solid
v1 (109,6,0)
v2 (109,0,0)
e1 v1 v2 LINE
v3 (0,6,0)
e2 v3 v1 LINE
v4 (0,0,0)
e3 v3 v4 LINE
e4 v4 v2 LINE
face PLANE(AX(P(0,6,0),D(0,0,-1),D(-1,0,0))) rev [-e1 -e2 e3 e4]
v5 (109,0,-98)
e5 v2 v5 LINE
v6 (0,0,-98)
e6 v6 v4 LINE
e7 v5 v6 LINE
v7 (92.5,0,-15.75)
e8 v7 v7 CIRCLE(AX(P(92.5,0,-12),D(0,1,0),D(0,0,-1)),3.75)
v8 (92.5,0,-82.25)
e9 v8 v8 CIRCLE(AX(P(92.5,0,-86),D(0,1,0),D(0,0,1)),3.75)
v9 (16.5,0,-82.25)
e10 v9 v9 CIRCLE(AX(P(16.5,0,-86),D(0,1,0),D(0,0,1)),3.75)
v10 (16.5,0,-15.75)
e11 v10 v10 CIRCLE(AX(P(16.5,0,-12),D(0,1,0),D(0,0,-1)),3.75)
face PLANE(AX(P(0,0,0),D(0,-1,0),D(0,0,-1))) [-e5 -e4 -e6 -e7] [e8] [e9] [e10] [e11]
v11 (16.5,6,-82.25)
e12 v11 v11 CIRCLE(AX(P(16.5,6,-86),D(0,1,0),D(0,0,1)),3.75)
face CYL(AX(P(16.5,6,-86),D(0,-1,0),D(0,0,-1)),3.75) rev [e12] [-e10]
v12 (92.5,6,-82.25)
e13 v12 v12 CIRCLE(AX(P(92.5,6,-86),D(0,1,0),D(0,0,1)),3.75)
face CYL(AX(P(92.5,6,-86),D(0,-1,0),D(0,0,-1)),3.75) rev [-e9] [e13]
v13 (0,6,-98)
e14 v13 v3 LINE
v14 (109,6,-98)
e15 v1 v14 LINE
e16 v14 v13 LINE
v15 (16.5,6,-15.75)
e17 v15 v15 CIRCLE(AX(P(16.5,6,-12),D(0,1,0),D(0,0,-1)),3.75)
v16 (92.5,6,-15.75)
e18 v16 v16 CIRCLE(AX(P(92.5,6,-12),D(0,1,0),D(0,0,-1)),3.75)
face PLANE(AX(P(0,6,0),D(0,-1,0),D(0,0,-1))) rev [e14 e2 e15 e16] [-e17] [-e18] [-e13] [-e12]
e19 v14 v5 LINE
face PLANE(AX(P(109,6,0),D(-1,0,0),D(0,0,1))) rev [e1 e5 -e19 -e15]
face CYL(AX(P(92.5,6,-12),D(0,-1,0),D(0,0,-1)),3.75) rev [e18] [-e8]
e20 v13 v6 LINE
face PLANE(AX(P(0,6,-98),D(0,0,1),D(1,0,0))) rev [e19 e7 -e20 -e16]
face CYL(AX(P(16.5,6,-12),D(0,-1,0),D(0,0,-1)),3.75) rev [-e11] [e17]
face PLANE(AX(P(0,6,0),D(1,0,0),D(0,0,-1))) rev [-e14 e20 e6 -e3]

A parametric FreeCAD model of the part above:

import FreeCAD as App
import Part
import Sketcher


def add_polygon(sketch, points):
    """Adds a closed chain of lines whose ends are joined by coincident constraints."""
    first, n = sketch.GeometryCount, len(points)
    for a, b in zip(points, points[1:] + points[:1]):
        sketch.addGeometry(Part.LineSegment(App.Vector(*a, 0), App.Vector(*b, 0)), False)
    for i in range(n):
        sketch.addConstraint(Sketcher.Constraint("Coincident", first + i, 2, first + (i + 1) % n, 1))

doc = App.newDocument("Part")
body = doc.addObject("PartDesign::Body", "Body")

# Sketch on XZ plane
sketch1 = body.newObject("Sketcher::SketchObject", "Sketch")
sketch1.AttachmentSupport = (doc.getObject("XZ_Plane"), [""])
sketch1.MapMode = "FlatFace"
add_polygon(sketch1, [(0, -98), (0, 0), (109, 0), (109, -98)])  # lines 0-3
sketch1.addGeometry(Part.Circle(App.Vector(16.5, -12, 0), App.Vector(0, 0, 1), 3.75), False)  # 4
sketch1.addGeometry(Part.Circle(App.Vector(92.5, -12, 0), App.Vector(0, 0, 1), 3.75), False)  # 5
sketch1.addGeometry(Part.Circle(App.Vector(16.5, -86, 0), App.Vector(0, 0, 1), 3.75), False)  # 6
sketch1.addGeometry(Part.Circle(App.Vector(92.5, -86, 0), App.Vector(0, 0, 1), 3.75), False)  # 7
sketch1.addConstraint([
    Sketcher.Constraint("Vertical", 0),
    Sketcher.Constraint("Horizontal", 1),
    Sketcher.Constraint("Vertical", 2),
    Sketcher.Constraint("Horizontal", 3),
    Sketcher.Constraint("Coincident", 0, 2, -1, 1),
    Sketcher.Constraint("Equal", 4, 5),
    Sketcher.Constraint("Equal", 5, 6),
    Sketcher.Constraint("Equal", 6, 7),
    Sketcher.Constraint("Horizontal", 4, 3, 5, 3),
    Sketcher.Constraint("Horizontal", 6, 3, 7, 3),
    Sketcher.Constraint("Vertical", 4, 3, 6, 3),
    Sketcher.Constraint("Vertical", 5, 3, 7, 3),
    Sketcher.Constraint("Diameter", 4, 7.5),
    Sketcher.Constraint("DistanceX", 1, 1, 1, 2, 109.0),
    Sketcher.Constraint("DistanceY", 0, 1, 0, 2, 98.0),
    Sketcher.Constraint("DistanceY", 4, 3, -1, 1, 12.0),
    Sketcher.Constraint("DistanceY", 6, 3, -1, 1, 86.0),
    Sketcher.Constraint("DistanceX", 4, 3, 5, 3, 76.0),
    Sketcher.Constraint("DistanceX", -1, 1, 4, 3, 16.5),
])
pad1 = body.newObject("PartDesign::Pad", "Pad")
pad1.Profile = sketch1
pad1.Length = 6
pad1.Reversed = True

doc.recompute()
